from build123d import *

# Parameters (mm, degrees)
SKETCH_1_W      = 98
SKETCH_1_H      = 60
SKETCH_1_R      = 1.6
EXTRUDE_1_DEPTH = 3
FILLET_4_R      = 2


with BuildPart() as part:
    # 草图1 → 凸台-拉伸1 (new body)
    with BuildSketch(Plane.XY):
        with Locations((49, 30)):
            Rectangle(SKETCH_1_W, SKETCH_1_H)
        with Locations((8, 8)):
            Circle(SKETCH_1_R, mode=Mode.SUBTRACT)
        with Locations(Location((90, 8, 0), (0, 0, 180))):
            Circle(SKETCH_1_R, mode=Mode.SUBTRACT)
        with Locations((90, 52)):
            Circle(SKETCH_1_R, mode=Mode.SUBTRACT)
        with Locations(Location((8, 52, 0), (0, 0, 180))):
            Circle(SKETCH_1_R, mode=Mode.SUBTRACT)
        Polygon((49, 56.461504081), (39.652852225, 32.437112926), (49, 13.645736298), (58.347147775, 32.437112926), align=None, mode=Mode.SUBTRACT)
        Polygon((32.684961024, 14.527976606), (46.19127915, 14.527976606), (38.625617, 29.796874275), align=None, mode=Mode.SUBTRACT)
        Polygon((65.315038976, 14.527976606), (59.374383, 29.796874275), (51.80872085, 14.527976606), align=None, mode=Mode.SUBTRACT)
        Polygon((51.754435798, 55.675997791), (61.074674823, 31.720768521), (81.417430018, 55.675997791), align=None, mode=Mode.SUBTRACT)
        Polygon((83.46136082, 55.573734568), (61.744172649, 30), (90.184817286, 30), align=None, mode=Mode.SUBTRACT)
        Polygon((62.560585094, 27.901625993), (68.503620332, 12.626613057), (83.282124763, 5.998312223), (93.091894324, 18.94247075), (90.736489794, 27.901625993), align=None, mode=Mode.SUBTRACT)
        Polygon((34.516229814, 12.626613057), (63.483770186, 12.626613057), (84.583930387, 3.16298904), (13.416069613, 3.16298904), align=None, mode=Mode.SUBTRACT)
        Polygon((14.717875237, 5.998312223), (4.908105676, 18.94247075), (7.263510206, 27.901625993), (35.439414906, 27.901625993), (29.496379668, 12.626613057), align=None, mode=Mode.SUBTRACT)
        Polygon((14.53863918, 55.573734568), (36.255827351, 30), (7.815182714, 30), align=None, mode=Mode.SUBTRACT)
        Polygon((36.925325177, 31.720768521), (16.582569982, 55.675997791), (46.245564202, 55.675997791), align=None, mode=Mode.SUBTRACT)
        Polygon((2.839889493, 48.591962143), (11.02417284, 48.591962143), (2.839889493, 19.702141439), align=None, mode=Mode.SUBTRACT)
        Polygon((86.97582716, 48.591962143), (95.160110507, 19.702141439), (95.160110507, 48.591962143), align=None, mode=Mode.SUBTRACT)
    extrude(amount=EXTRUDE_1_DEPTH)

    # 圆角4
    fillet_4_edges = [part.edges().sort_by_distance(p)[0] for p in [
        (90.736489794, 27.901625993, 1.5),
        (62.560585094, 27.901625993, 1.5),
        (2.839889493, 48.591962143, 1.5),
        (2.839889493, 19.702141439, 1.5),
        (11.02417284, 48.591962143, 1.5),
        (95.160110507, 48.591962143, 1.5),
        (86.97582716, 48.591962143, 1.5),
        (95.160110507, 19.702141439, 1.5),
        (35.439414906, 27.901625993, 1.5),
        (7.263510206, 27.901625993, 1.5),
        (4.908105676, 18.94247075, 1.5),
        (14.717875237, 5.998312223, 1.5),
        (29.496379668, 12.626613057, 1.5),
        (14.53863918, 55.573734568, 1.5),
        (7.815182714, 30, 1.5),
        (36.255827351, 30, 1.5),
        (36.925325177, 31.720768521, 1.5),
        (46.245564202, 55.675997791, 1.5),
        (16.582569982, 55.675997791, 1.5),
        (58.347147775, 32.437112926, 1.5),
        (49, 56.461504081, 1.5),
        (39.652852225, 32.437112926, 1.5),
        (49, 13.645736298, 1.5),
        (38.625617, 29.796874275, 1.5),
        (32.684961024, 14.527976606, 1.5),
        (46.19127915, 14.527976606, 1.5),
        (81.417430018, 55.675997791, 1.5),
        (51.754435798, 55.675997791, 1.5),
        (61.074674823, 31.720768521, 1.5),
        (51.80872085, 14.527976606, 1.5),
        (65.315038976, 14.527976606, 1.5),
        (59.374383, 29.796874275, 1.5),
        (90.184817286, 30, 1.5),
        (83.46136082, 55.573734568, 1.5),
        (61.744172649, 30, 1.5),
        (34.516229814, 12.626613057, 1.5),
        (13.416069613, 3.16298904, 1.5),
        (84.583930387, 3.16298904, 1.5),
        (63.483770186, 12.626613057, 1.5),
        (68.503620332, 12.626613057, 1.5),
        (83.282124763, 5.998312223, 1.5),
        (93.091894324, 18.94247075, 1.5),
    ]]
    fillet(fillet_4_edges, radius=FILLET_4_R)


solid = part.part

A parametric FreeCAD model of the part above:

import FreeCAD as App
import Part
import Sketcher

V = App.Vector
Q = App.Units.Quantity


def edges_at(feature, points):
    """Names of the edges that pass closest to the given points."""
    edges = feature.Shape.Edges
    near = lambda p: min(range(len(edges)), key=lambda i: edges[i].distToShape(Part.Vertex(*p))[0])
    return sorted({f"Edge{near(p) + 1}" for p in points})

doc = App.newDocument("Part")
params = doc.addObject("Spreadsheet::Sheet", "Params")
for row, (alias, value) in enumerate([
    ("sketch1_diameter", "3.2 mm"),
    ("sketch1_width", "98 mm"),
    ("sketch1_height", "60 mm"),
    ("pad1_length", "3 mm"),
    ("fillet_radius", "2 mm"),
], start=1):
    params.set(f"A{row}", alias)
    params.set(f"B{row}", "=" + value)
    params.setAlias(f"B{row}", alias)

body = doc.addObject("PartDesign::Body", "Body")

# Sketch on XY plane
sketch1 = doc.addObject("Sketcher::SketchObject", "Sketch")
body.addObject(sketch1)
sketch1.AttachmentSupport = (doc.XY_Plane, [""])
sketch1.MapMode = "FlatFace"
sketch1.addGeometry([
    Part.LineSegment(V(0, 60, 0), V(0, 0, 0)),  # 0
    Part.LineSegment(V(0, 0, 0), V(98, 0, 0)),  # 1
    Part.LineSegment(V(98, 0, 0), V(98, 60, 0)),  # 2
    Part.LineSegment(V(98, 60, 0), V(0, 60, 0)),  # 3
    Part.Circle(V(8, 8, 0), V(0, 0, 1), 1.6),  # 4
    Part.LineSegment(V(29.5, 12.6, 0), V(14.7, 6, 0)),  # 5
    Part.LineSegment(V(14.7, 6, 0), V(4.9, 18.9, 0)),  # 6
    Part.LineSegment(V(4.9, 18.9, 0), V(7.3, 27.9, 0)),  # 7
    Part.LineSegment(V(7.3, 27.9, 0), V(35.4, 27.9, 0)),  # 8
    Part.LineSegment(V(35.4, 27.9, 0), V(29.5, 12.6, 0)),  # 9
    Part.LineSegment(V(46.2, 14.5, 0), V(32.7, 14.5, 0)),  # 10
    Part.LineSegment(V(32.7, 14.5, 0), V(38.6, 29.8, 0)),  # 11
    Part.LineSegment(V(38.6, 29.8, 0), V(46.2, 14.5, 0)),  # 12
    Part.LineSegment(V(13.4, 3.2, 0), V(34.5, 12.6, 0)),  # 13
    Part.LineSegment(V(34.5, 12.6, 0), V(63.5, 12.6, 0)),  # 14
    Part.LineSegment(V(63.5, 12.6, 0), V(84.6, 3.2, 0)),  # 15
    Part.LineSegment(V(84.6, 3.2, 0), V(13.4, 3.2, 0)),  # 16
    Part.Circle(V(90, 8, 0), V(0, 0, 1), 1.6),  # 17
    Part.LineSegment(V(59.4, 29.8, 0), V(65.3, 14.5, 0)),  # 18
    Part.LineSegment(V(65.3, 14.5, 0), V(51.8, 14.5, 0)),  # 19
    Part.LineSegment(V(51.8, 14.5, 0), V(59.4, 29.8, 0)),  # 20
    Part.LineSegment(V(68.5, 12.6, 0), V(62.6, 27.9, 0)),  # 21
    Part.LineSegment(V(62.6, 27.9, 0), V(90.7, 27.9, 0)),  # 22
    Part.LineSegment(V(90.7, 27.9, 0), V(93.1, 18.9, 0)),  # 23
    Part.LineSegment(V(93.1, 18.9, 0), V(83.3, 6, 0)),  # 24
    Part.LineSegment(V(83.3, 6, 0), V(68.5, 12.6, 0)),  # 25
    Part.LineSegment(V(2.8, 19.7, 0), V(2.8, 48.6, 0)),  # 26
    Part.LineSegment(V(2.8, 48.6, 0), V(11, 48.6, 0)),  # 27
    Part.LineSegment(V(11, 48.6, 0), V(2.8, 19.7, 0)),  # 28
    Part.LineSegment(V(7.8, 30, 0), V(14.5, 55.6, 0)),  # 29
    Part.LineSegment(V(14.5, 55.6, 0), V(36.3, 30, 0)),  # 30
    Part.LineSegment(V(36.3, 30, 0), V(7.8, 30, 0)),  # 31
    Part.Circle(V(8, 52, 0), V(0, 0, 1), 1.6),  # 32
    Part.LineSegment(V(46.2, 55.7, 0), V(36.9, 31.7, 0)),  # 33
    Part.LineSegment(V(36.9, 31.7, 0), V(16.6, 55.7, 0)),  # 34
    Part.LineSegment(V(16.6, 55.7, 0), V(46.2, 55.7, 0)),  # 35
    Part.LineSegment(V(39.7, 32.4, 0), V(49, 56.5, 0)),  # 36
    Part.LineSegment(V(49, 56.5, 0), V(58.3, 32.4, 0)),  # 37
    Part.LineSegment(V(58.3, 32.4, 0), V(49, 13.6, 0)),  # 38
    Part.LineSegment(V(49, 13.6, 0), V(39.7, 32.4, 0)),  # 39
    Part.LineSegment(V(95.2, 19.7, 0), V(87, 48.6, 0)),  # 40
    Part.LineSegment(V(87, 48.6, 0), V(95.2, 48.6, 0)),  # 41
    Part.LineSegment(V(95.2, 48.6, 0), V(95.2, 19.7, 0)),  # 42
    Part.LineSegment(V(61.7, 30, 0), V(83.5, 55.6, 0)),  # 43
    Part.LineSegment(V(83.5, 55.6, 0), V(90.2, 30, 0)),  # 44
    Part.LineSegment(V(90.2, 30, 0), V(61.7, 30, 0)),  # 45
    Part.LineSegment(V(61.1, 31.7, 0), V(51.8, 55.7, 0)),  # 46
    Part.LineSegment(V(51.8, 55.7, 0), V(81.4, 55.7, 0)),  # 47
    Part.LineSegment(V(81.4, 55.7, 0), V(61.1, 31.7, 0)),  # 48
    Part.Circle(V(90, 52, 0), V(0, 0, 1), 1.6),  # 49
], False)
sketch1.addConstraint([
    Sketcher.Constraint("Coincident", 0, 2, 1, 1),
    Sketcher.Constraint("Coincident", 1, 2, 2, 1),
    Sketcher.Constraint("Coincident", 2, 2, 3, 1),
    Sketcher.Constraint("Coincident", 3, 2, 0, 1),
    Sketcher.Constraint("Coincident", 5, 2, 6, 1),
    Sketcher.Constraint("Coincident", 6, 2, 7, 1),
    Sketcher.Constraint("Coincident", 7, 2, 8, 1),
    Sketcher.Constraint("Coincident", 8, 2, 9, 1),
    Sketcher.Constraint("Coincident", 9, 2, 5, 1),
    Sketcher.Constraint("Coincident", 10, 2, 11, 1),
    Sketcher.Constraint("Coincident", 11, 2, 12, 1),
    Sketcher.Constraint("Coincident", 12, 2, 10, 1),
    Sketcher.Constraint("Coincident", 13, 2, 14, 1),
    Sketcher.Constraint("Coincident", 14, 2, 15, 1),
    Sketcher.Constraint("Coincident", 15, 2, 16, 1),
    Sketcher.Constraint("Coincident", 16, 2, 13, 1),
    Sketcher.Constraint("Coincident", 18, 2, 19, 1),
    Sketcher.Constraint("Coincident", 19, 2, 20, 1),
    Sketcher.Constraint("Coincident", 20, 2, 18, 1),
    Sketcher.Constraint("Coincident", 21, 2, 22, 1),
    Sketcher.Constraint("Coincident", 22, 2, 23, 1),
    Sketcher.Constraint("Coincident", 23, 2, 24, 1),
    Sketcher.Constraint("Coincident", 24, 2, 25, 1),
    Sketcher.Constraint("Coincident", 25, 2, 21, 1),
    Sketcher.Constraint("Coincident", 26, 2, 27, 1),
    Sketcher.Constraint("Coincident", 27, 2, 28, 1),
    Sketcher.Constraint("Coincident", 28, 2, 26, 1),
    Sketcher.Constraint("Coincident", 29, 2, 30, 1),
    Sketcher.Constraint("Coincident", 30, 2, 31, 1),
    Sketcher.Constraint("Coincident", 31, 2, 29, 1),
    Sketcher.Constraint("Coincident", 33, 2, 34, 1),
    Sketcher.Constraint("Coincident", 34, 2, 35, 1),
    Sketcher.Constraint("Coincident", 35, 2, 33, 1),
    Sketcher.Constraint("Coincident", 36, 2, 37, 1),
    Sketcher.Constraint("Coincident", 37, 2, 38, 1),
    Sketcher.Constraint("Coincident", 38, 2, 39, 1),
    Sketcher.Constraint("Coincident", 39, 2, 36, 1),
    Sketcher.Constraint("Coincident", 40, 2, 41, 1),
    Sketcher.Constraint("Coincident", 41, 2, 42, 1),
    Sketcher.Constraint("Coincident", 42, 2, 40, 1),
    Sketcher.Constraint("Coincident", 43, 2, 44, 1),
    Sketcher.Constraint("Coincident", 44, 2, 45, 1),
    Sketcher.Constraint("Coincident", 45, 2, 43, 1),
    Sketcher.Constraint("Coincident", 46, 2, 47, 1),
    Sketcher.Constraint("Coincident", 47, 2, 48, 1),
    Sketcher.Constraint("Coincident", 48, 2, 46, 1),
    Sketcher.Constraint("Vertical", 0),
    Sketcher.Constraint("Horizontal", 1),
    Sketcher.Constraint("Vertical", 2),
    Sketcher.Constraint("Horizontal", 3),
    Sketcher.Constraint("Horizontal", 8),
    Sketcher.Constraint("Horizontal", 10),
    Sketcher.Constraint("Horizontal", 14),
    Sketcher.Constraint("Horizontal", 16),
    Sketcher.Constraint("Horizontal", 19),
    Sketcher.Constraint("Horizontal", 22),
    Sketcher.Constraint("Vertical", 26),
    Sketcher.Constraint("Horizontal", 27),
    Sketcher.Constraint("Horizontal", 31),
    Sketcher.Constraint("Horizontal", 35),
    Sketcher.Constraint("Horizontal", 41),
    Sketcher.Constraint("Vertical", 42),
    Sketcher.Constraint("Horizontal", 45),
    Sketcher.Constraint("Horizontal", 47),
    Sketcher.Constraint("Coincident", 0, 2, -1, 1),
    Sketcher.Constraint("Equal", 4, 17),
    Sketcher.Constraint("Equal", 17, 32),
    Sketcher.Constraint("Equal", 32, 49),
    Sketcher.Constraint("Parallel", 9, 11),
    Sketcher.Constraint("Parallel", 5, 13),
    Sketcher.Constraint("Parallel", 18, 21),
    Sketcher.Constraint("Parallel", 15, 25),
    Sketcher.Constraint("Parallel", 7, 29),
    Sketcher.Constraint("Parallel", 11, 33),
    Sketcher.Constraint("Parallel", 30, 34),
    Sketcher.Constraint("Parallel", 33, 36),
    Sketcher.Constraint("Parallel", 21, 37),
    Sketcher.Constraint("Parallel", 23, 44),
    Sketcher.Constraint("Parallel", 37, 46),
    Sketcher.Constraint("Parallel", 43, 48),
    Sketcher.Constraint("Horizontal", 4, 3, 17, 3),
    Sketcher.Constraint("Horizontal", 32, 3, 49, 3),
    Sketcher.Constraint("Horizontal", 9, 2, 13, 2),
    Sketcher.Constraint("Horizontal", 12, 2, 18, 2),
    Sketcher.Constraint("Horizontal", 11, 2, 20, 2),
    Sketcher.Constraint("Horizontal", 8, 2, 21, 2),
    Sketcher.Constraint("Horizontal", 6, 2, 23, 2),
    Sketcher.Constraint("Horizontal", 5, 2, 24, 2),
    Sketcher.Constraint("Horizontal", 14, 2, 25, 2),
    Sketcher.Constraint("Horizontal", 37, 2, 39, 2),
    Sketcher.Constraint("Horizontal", 27, 2, 40, 2),
    Sketcher.Constraint("Horizontal", 28, 2, 42, 2),
    Sketcher.Constraint("Horizontal", 29, 2, 43, 2),
    Sketcher.Constraint("Horizontal", 31, 2, 44, 2),
    Sketcher.Constraint("Horizontal", 35, 2, 46, 2),
    Sketcher.Constraint("Horizontal", 33, 2, 48, 2),
    Sketcher.Constraint("Vertical", 4, 3, 32, 3),
    Sketcher.Constraint("Vertical", 17, 3, 49, 3),
    Sketcher.Constraint("Vertical", 36, 2, 38, 2),
    Sketcher.Constraint("Equal", 10, 19),
    Sketcher.Constraint("Equal", 8, 22),
    Sketcher.Constraint("Equal", 27, 41),
    Sketcher.Constraint("Equal", 31, 45),
    Sketcher.Constraint("Equal", 35, 47),
    Sketcher.Constraint("Equal", 13, 15),
    Sketcher.Constraint("Equal", 11, 18),
    Sketcher.Constraint("Diameter", 4, 3.2),
    Sketcher.Constraint("DistanceX", 1, 1, 1, 2, 98.0),
    Sketcher.Constraint("DistanceY", 0, 2, 0, 1, 60.0),
    Sketcher.Constraint("DistanceX", -1, 1, 4, 3, 8.0),
    Sketcher.Constraint("DistanceY", -1, 1, 4, 3, 8.0),
    Sketcher.Constraint("DistanceX", -1, 1, 17, 3, 90.0),
    Sketcher.Constraint("DistanceY", -1, 1, 32, 3, 52.0),
    Sketcher.Constraint("DistanceY", -1, 1, 30, 2, 30.0),
    Sketcher.Constraint("DistanceX", -1, 1, 36, 2, 49.0),
    Sketcher.Constraint("Angle", 7, Q("75.270002 deg")),
    Sketcher.Constraint("DistanceX", 10, 2, 10, 1, 13.506318),
    Sketcher.Constraint("DistanceX", 14, 1, 14, 2, 28.96754),
    Sketcher.Constraint("DistanceX", 16, 2, 16, 1, 71.167861),
    Sketcher.Constraint("DistanceY", 26, 1, 26, 2, 28.889821),
    Sketcher.Constraint("DistanceY", 5, 2, 9, 2, 6.628301),
    Sketcher.Constraint("DistanceX", 9, 2, 12, 2, 16.694899),
    Sketcher.Constraint("DistanceX", 19, 2, 25, 2, 16.694899),
    Sketcher.Constraint("Distance", 5, 16.196869),
    Sketcher.Constraint("Distance", 30, 33.55074),
    Sketcher.Constraint("Distance", 33, 25.704472),
    Sketcher.Constraint("DistanceX", 8, 1, 8, 2, 28.175905),
    Sketcher.Constraint("DistanceX", 27, 1, 27, 2, 8.184283),
    Sketcher.Constraint("DistanceX", 31, 2, 31, 1, 28.440645),
    Sketcher.Constraint("DistanceX", 35, 1, 35, 2, 29.662994),
    Sketcher.Constraint("DistanceY", -1, 1, 6, 2, 18.942471),
    Sketcher.Constraint("DistanceX", -1, 1, 7, 2, 7.26351),
    Sketcher.Constraint("DistanceX", -1, 1, 9, 2, 29.49638),
    Sketcher.Constraint("DistanceX", -1, 1, 13, 2, 34.51623),
    Sketcher.Constraint("DistanceY", -1, 1, 15, 2, 3.162989),
    Sketcher.Constraint("DistanceX", -1, 1, 18, 2, 65.315039),
    Sketcher.Constraint("DistanceX", -1, 1, 26, 2, 2.839889),
    Sketcher.Constraint("DistanceY", -1, 1, 28, 2, 19.702141),
    Sketcher.Constraint("DistanceX", -1, 1, 29, 2, 14.538639),
    Sketcher.Constraint("DistanceY", -1, 1, 33, 2, 31.720769),
    Sketcher.Constraint("DistanceX", -1, 1, 34, 2, 16.58257),
    Sketcher.Constraint("DistanceX", -1, 1, 41, 2, 95.160111),
    Sketcher.Constraint("DistanceX", -1, 1, 43, 2, 83.461361),
    Sketcher.Constraint("DistanceX", -1, 1, 47, 2, 81.41743),
    Sketcher.Constraint("DistanceY", 10, 2, 8, 2, 13.373649),
    Sketcher.Constraint("DistanceY", 8, 2, 11, 2, 1.895248),
    Sketcher.Constraint("DistanceY", 11, 2, 36, 2, 26.66463),
    Sketcher.Constraint("DistanceY", 20, 2, 37, 2, 2.640239),
    Sketcher.Constraint("DistanceY", 38, 2, 12, 2, 0.88224),
])
sketch1.setExpression("Constraints[106]", "Params.sketch1_diameter")
sketch1.setExpression("Constraints[107]", "Params.sketch1_width")
sketch1.setExpression("Constraints[108]", "Params.sketch1_height")
pad1 = doc.addObject("PartDesign::Pad", "Pad")
body.addObject(pad1)
pad1.Profile = sketch1
pad1.setExpression("Length", "Params.pad1_length")
doc.recompute()

fillet = doc.addObject("PartDesign::Fillet", "Fillet")
body.addObject(fillet)
fillet.Base = (pad1, edges_at(pad1, [
    (90.736, 27.902, 1.5),
    (62.561, 27.902, 1.5),
    (2.84, 48.592, 1.5),
    (2.84, 19.702, 1.5),
    (11.024, 48.592, 1.5),
    (95.16, 48.592, 1.5),
    (86.976, 48.592, 1.5),
    (95.16, 19.702, 1.5),
    (35.439, 27.902, 1.5),
    (7.264, 27.902, 1.5),
    (4.908, 18.942, 1.5),
    (14.718, 5.998, 1.5),
    (29.496, 12.627, 1.5),
    (14.539, 55.574, 1.5),
    (7.815, 30, 1.5),
    (36.256, 30, 1.5),
    (36.925, 31.721, 1.5),
    (46.246, 55.676, 1.5),
    (16.583, 55.676, 1.5),
    (58.347, 32.437, 1.5),
    (49, 56.462, 1.5),
    (39.653, 32.437, 1.5),
    (49, 13.646, 1.5),
    (38.626, 29.797, 1.5),
    (32.685, 14.528, 1.5),
    (46.191, 14.528, 1.5),
    (81.417, 55.676, 1.5),
    (51.754, 55.676, 1.5),
    (61.075, 31.721, 1.5),
    (51.809, 14.528, 1.5),
    (65.315, 14.528, 1.5),
    (59.374, 29.797, 1.5),
    (90.185, 30, 1.5),
    (83.461, 55.574, 1.5),
    (61.744, 30, 1.5),
    (34.516, 12.627, 1.5),
    (13.416, 3.163, 1.5),
    (84.584, 3.163, 1.5),
    (63.484, 12.627, 1.5),
    (68.504, 12.627, 1.5),
    (83.282, 5.998, 1.5),
    (93.092, 18.942, 1.5),
]))
fillet.setExpression("Radius", "Params.fillet_radius")

doc.recompute()
